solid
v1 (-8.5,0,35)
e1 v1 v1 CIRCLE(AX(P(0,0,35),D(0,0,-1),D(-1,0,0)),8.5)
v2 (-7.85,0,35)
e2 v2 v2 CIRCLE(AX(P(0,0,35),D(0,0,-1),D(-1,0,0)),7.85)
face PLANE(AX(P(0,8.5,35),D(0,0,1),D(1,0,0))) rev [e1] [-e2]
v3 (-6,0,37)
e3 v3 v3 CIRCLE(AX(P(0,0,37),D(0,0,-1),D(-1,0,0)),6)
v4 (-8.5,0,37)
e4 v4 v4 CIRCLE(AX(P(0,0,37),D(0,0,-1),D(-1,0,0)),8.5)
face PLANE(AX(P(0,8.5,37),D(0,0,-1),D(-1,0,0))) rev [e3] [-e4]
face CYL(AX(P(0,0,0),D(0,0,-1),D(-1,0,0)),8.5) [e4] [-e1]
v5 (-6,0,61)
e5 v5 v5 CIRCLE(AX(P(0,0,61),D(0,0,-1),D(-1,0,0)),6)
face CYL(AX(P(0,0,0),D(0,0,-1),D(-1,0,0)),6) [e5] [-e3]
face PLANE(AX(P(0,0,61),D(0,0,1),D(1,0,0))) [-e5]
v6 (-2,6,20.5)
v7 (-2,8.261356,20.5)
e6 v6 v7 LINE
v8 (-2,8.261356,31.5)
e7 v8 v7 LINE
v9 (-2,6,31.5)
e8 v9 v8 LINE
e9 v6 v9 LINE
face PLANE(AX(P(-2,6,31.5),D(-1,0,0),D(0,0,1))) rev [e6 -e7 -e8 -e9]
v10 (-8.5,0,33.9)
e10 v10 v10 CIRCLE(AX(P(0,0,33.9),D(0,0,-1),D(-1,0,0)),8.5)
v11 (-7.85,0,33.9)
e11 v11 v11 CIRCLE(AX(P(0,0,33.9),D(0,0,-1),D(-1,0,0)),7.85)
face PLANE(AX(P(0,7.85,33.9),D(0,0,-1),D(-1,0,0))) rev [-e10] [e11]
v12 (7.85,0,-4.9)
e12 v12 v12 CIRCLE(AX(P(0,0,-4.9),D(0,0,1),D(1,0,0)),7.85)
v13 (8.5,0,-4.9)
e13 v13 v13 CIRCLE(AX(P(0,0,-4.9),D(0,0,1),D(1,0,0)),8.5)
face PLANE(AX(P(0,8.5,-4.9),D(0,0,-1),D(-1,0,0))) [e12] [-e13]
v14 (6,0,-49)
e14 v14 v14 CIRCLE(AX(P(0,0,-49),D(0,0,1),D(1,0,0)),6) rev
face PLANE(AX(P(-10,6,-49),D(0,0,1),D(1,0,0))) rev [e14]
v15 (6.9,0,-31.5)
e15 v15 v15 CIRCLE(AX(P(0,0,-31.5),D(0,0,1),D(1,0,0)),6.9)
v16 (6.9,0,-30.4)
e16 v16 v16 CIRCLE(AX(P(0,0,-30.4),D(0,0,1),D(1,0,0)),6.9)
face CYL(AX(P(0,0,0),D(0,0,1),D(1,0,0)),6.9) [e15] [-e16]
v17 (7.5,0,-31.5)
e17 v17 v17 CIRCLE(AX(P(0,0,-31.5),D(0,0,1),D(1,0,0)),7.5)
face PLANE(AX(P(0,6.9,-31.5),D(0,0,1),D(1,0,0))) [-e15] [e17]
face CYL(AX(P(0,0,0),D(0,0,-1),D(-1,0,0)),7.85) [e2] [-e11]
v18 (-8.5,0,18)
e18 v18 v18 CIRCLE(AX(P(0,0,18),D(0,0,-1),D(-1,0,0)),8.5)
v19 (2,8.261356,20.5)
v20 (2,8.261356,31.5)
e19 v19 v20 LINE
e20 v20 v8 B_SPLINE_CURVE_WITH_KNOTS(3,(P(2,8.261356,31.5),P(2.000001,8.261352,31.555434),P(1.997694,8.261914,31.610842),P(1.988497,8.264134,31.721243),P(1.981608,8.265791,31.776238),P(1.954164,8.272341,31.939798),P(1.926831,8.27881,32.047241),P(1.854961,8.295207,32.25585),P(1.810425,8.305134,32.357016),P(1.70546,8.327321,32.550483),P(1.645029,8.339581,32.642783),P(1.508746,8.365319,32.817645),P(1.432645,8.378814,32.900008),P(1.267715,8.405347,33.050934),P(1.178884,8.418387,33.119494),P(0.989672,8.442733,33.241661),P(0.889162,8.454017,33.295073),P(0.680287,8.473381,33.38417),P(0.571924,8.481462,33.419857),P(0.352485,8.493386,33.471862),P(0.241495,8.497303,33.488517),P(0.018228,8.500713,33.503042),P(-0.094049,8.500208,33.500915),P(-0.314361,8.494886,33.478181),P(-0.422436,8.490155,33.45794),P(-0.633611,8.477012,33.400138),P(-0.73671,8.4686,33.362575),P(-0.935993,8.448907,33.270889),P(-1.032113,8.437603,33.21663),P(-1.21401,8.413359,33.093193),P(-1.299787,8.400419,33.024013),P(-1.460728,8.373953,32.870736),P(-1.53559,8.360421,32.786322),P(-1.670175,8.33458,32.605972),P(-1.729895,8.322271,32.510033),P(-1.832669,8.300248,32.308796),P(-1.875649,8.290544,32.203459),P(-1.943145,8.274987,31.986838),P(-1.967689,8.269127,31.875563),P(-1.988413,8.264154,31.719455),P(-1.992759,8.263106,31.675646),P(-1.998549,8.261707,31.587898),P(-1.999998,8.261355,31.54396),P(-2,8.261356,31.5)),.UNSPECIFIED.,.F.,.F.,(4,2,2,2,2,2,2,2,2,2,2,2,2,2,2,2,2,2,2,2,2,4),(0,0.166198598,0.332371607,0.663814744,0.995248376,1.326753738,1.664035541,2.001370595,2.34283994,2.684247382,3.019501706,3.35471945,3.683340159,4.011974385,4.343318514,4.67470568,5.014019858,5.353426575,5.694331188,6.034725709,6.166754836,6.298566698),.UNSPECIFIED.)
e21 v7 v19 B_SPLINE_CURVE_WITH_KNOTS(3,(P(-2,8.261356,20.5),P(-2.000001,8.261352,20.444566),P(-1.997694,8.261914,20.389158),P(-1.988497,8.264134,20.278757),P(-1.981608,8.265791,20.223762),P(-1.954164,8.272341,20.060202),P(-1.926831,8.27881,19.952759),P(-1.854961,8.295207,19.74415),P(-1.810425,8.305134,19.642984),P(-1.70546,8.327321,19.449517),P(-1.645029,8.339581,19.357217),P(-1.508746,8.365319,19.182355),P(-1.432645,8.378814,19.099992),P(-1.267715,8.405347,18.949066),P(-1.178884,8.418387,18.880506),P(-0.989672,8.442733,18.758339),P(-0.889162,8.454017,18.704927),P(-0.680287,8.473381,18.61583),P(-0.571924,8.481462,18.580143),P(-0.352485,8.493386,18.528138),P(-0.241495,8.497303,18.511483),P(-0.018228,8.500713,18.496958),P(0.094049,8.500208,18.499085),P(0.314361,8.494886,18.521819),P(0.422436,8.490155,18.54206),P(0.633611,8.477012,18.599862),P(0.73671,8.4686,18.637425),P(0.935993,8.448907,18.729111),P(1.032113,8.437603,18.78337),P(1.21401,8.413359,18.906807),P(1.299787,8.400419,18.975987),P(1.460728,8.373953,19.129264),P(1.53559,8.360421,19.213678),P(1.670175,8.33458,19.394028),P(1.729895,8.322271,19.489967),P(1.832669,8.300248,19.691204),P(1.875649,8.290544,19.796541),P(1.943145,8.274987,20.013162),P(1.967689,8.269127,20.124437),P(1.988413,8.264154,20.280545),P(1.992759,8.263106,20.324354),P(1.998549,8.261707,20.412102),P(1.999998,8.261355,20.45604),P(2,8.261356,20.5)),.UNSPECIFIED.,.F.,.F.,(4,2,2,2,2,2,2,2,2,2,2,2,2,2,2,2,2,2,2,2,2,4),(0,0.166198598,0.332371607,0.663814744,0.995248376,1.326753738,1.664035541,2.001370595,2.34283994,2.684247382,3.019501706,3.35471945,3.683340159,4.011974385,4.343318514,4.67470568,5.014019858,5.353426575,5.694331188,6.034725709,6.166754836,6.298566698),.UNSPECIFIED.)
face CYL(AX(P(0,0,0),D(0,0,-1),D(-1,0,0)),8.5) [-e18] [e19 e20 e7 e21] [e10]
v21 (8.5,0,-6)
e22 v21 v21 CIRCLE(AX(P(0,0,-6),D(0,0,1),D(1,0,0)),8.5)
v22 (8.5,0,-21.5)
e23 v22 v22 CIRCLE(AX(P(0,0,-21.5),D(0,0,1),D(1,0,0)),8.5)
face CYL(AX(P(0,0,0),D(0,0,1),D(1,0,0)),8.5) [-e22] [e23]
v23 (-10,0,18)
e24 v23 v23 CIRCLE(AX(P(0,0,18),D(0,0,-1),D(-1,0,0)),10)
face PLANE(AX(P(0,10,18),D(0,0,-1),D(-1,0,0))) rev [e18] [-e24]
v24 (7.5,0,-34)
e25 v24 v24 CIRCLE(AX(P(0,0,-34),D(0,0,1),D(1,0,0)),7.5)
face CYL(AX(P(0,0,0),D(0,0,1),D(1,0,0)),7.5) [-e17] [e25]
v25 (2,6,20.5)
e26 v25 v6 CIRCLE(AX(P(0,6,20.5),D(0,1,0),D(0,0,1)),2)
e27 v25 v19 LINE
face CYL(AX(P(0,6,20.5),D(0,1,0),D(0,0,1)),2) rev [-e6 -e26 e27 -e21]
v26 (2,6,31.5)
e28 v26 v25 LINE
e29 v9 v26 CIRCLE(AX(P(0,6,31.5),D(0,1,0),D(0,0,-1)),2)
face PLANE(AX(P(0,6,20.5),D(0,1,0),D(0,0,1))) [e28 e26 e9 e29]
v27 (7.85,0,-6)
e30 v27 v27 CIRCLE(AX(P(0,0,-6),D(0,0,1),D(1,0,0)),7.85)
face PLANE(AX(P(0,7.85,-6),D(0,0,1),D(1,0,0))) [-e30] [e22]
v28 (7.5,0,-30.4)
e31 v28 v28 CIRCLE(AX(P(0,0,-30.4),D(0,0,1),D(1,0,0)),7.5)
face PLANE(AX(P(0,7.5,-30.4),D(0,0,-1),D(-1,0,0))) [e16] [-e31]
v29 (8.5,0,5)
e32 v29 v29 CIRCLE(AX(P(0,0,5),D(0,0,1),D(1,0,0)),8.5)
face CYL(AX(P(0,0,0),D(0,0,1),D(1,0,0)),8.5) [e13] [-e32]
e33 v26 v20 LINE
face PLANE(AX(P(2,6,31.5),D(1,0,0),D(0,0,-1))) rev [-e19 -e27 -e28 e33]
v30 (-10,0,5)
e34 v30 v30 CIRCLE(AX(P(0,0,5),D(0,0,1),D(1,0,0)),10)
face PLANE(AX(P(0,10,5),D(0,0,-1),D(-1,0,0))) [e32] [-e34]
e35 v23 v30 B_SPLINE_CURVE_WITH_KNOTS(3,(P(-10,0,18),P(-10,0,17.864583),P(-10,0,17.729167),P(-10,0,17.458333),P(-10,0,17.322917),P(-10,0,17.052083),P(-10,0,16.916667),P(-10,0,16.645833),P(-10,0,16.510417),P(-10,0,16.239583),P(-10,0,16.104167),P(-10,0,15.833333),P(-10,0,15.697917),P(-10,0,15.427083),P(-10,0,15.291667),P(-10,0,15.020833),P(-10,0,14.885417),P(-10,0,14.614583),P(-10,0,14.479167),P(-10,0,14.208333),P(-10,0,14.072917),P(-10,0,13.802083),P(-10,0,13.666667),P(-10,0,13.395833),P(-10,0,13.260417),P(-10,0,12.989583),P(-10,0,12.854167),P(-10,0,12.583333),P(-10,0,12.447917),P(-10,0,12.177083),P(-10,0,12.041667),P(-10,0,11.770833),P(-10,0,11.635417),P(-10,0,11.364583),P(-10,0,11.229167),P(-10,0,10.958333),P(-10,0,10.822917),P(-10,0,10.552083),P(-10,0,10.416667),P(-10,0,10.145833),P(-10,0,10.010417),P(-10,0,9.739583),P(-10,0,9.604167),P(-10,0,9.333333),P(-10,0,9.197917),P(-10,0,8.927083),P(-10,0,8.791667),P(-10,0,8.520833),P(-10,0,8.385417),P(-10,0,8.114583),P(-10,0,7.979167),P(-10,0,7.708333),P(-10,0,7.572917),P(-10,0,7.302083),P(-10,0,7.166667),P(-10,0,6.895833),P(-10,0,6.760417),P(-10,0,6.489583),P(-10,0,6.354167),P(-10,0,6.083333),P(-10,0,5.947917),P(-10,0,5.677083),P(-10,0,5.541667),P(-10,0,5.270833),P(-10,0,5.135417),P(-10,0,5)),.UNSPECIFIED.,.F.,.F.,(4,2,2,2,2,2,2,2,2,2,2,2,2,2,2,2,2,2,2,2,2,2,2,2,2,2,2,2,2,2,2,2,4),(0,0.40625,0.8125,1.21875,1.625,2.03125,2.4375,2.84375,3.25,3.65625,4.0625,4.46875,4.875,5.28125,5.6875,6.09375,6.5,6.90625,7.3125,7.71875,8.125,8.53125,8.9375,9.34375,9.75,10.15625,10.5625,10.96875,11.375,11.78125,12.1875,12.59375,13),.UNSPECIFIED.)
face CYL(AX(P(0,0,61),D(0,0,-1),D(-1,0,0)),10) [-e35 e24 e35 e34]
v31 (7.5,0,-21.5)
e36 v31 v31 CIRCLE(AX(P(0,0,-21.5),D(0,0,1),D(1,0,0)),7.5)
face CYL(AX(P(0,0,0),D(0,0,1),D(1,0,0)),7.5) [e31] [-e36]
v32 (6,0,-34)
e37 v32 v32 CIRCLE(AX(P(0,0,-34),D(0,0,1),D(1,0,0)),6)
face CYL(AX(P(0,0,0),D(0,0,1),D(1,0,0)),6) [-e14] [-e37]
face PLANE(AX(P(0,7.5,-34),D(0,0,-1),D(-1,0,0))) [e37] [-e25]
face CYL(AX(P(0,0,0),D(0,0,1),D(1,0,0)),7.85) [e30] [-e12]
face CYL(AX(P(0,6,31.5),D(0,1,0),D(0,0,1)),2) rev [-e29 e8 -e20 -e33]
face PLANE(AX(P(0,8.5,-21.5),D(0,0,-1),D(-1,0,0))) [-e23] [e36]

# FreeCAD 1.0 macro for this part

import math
import FreeCAD as App
import Part
import Sketcher

V = App.Vector
Q = App.Units.Quantity


def add_polygon(sketch, points):
    """Adds a closed chain of lines whose ends are joined by coincident constraints."""
    first, n = sketch.GeometryCount, len(points)
    for a, b in zip(points, points[1:] + points[:1]):
        sketch.addGeometry(Part.LineSegment(App.Vector(*a, 0), App.Vector(*b, 0)), False)
    for i in range(n):
        sketch.addConstraint(Sketcher.Constraint("Coincident", first + i, 2, first + (i + 1) % n, 1))

doc = App.newDocument("Part")
body = doc.addObject("PartDesign::Body", "Body")

# Sketch on XY plane
sketch1 = body.newObject("Sketcher::SketchObject", "Sketch")
sketch1.AttachmentSupport = (doc.getObject("XY_Plane"), [""])
sketch1.MapMode = "FlatFace"
sketch1.addGeometry(Part.Circle(V(0, 0, 0), V(0, 0, 1), 10), False)
sketch1.addConstraint(Sketcher.Constraint("Coincident", 0, 3, -1, 1))
sketch1.addConstraint(Sketcher.Constraint("Diameter", 0, Q("20 mm")))
pad1 = body.newObject("PartDesign::Pad", "Pad")
pad1.Profile = sketch1
pad1.Length = 122
pad1.Midplane = True

# Sketch on YZ plane
sketch2 = body.newObject("Sketcher::SketchObject", "Sketch001")
sketch2.AttachmentSupport = (doc.getObject("YZ_Plane"), [""])
sketch2.MapMode = "FlatFace"
add_polygon(sketch2, [(10, 5), (8.5, 5), (8.5, -61), (10, -61)])  # lines 0-3
sketch2.addConstraint(Sketcher.Constraint("Horizontal", 0))
sketch2.addConstraint(Sketcher.Constraint("Vertical", 1))
sketch2.addConstraint(Sketcher.Constraint("Horizontal", 2))
sketch2.addConstraint(Sketcher.Constraint("Vertical", 3))
sketch2.addConstraint(Sketcher.Constraint("DistanceY", 1, 2, 1, 1, Q("66 mm")))
sketch2.addConstraint(Sketcher.Constraint("DistanceX", 0, 2, 0, 1, Q("1.5 mm")))
sketch2.addConstraint(Sketcher.Constraint("DistanceY", -1, 1, 0, 2, Q("5 mm")))
sketch2.addConstraint(Sketcher.Constraint("DistanceX", -1, 1, 2, 2, Q("10 mm")))
groove = body.newObject("PartDesign::Groove", "Groove")
groove.Profile = sketch2
groove.ReferenceAxis = (sketch2, ["V_Axis"])
groove.Angle = 360

# Sketch on YZ plane
sketch3 = body.newObject("Sketcher::SketchObject", "Sketch002")
sketch3.AttachmentSupport = (doc.getObject("YZ_Plane"), [""])
sketch3.MapMode = "FlatFace"
add_polygon(sketch3, [(10, 61), (8.5, 61), (8.5, 18), (10, 18)])  # lines 0-3
sketch3.addConstraint(Sketcher.Constraint("Horizontal", 0))
sketch3.addConstraint(Sketcher.Constraint("Vertical", 1))
sketch3.addConstraint(Sketcher.Constraint("Horizontal", 2))
sketch3.addConstraint(Sketcher.Constraint("Vertical", 3))
sketch3.addConstraint(Sketcher.Constraint("DistanceY", 1, 2, 1, 1, Q("43 mm")))
sketch3.addConstraint(Sketcher.Constraint("DistanceX", 0, 2, 0, 1, Q("1.5 mm")))
sketch3.addConstraint(Sketcher.Constraint("DistanceY", -1, 1, 0, 2, Q("61 mm")))
sketch3.addConstraint(Sketcher.Constraint("DistanceX", -1, 1, 2, 2, Q("10 mm")))
groove2 = body.newObject("PartDesign::Groove", "Groove001")
groove2.Profile = sketch3
groove2.ReferenceAxis = (sketch3, ["V_Axis"])
groove2.Angle = 360

# Sketch on YZ plane
sketch4 = body.newObject("Sketcher::SketchObject", "Sketch003")
sketch4.AttachmentSupport = (doc.getObject("YZ_Plane"), [""])
sketch4.MapMode = "FlatFace"
add_polygon(sketch4, [(8.5, 61), (6, 61), (6, 37), (8.5, 37)])  # lines 0-3
sketch4.addConstraint(Sketcher.Constraint("Horizontal", 0))
sketch4.addConstraint(Sketcher.Constraint("Vertical", 1))
sketch4.addConstraint(Sketcher.Constraint("Horizontal", 2))
sketch4.addConstraint(Sketcher.Constraint("Vertical", 3))
sketch4.addConstraint(Sketcher.Constraint("DistanceY", 1, 2, 1, 1, Q("24 mm")))
sketch4.addConstraint(Sketcher.Constraint("DistanceX", 0, 2, 0, 1, Q("2.5 mm")))
sketch4.addConstraint(Sketcher.Constraint("DistanceX", -1, 1, 0, 2, Q("6 mm")))
sketch4.addConstraint(Sketcher.Constraint("DistanceY", -1, 1, 0, 2, Q("61 mm")))
groove3 = body.newObject("PartDesign::Groove", "Groove002")
groove3.Profile = sketch4
groove3.ReferenceAxis = (sketch4, ["V_Axis"])
groove3.Angle = 360

# Sketch on YZ plane
sketch5 = body.newObject("Sketcher::SketchObject", "Sketch004")
sketch5.AttachmentSupport = (doc.getObject("YZ_Plane"), [""])
sketch5.MapMode = "FlatFace"
add_polygon(sketch5, [(8.5, -21.5), (7.5, -21.5), (7.5, -61), (8.5, -61)])  # lines 0-3
sketch5.addConstraint(Sketcher.Constraint("Horizontal", 0))
sketch5.addConstraint(Sketcher.Constraint("Vertical", 1))
sketch5.addConstraint(Sketcher.Constraint("Horizontal", 2))
sketch5.addConstraint(Sketcher.Constraint("Vertical", 3))
sketch5.addConstraint(Sketcher.Constraint("DistanceX", 0, 2, 0, 1, Q("1 mm")))
sketch5.addConstraint(Sketcher.Constraint("DistanceY", 1, 2, 1, 1, Q("39.5 mm")))
sketch5.addConstraint(Sketcher.Constraint("DistanceY", 1, 2, -1, 1, Q("61 mm")))
sketch5.addConstraint(Sketcher.Constraint("DistanceX", -1, 1, 0, 2, Q("7.5 mm")))
groove4 = body.newObject("PartDesign::Groove", "Groove003")
groove4.Profile = sketch5
groove4.ReferenceAxis = (sketch5, ["V_Axis"])
groove4.Angle = 360

# Sketch on YZ plane
sketch6 = body.newObject("Sketcher::SketchObject", "Sketch005")
sketch6.AttachmentSupport = (doc.getObject("YZ_Plane"), [""])
sketch6.MapMode = "FlatFace"
add_polygon(sketch6, [(7.5, -34), (6, -34), (6, -61), (7.5, -61)])  # lines 0-3
sketch6.addConstraint(Sketcher.Constraint("Horizontal", 0))
sketch6.addConstraint(Sketcher.Constraint("Vertical", 1))
sketch6.addConstraint(Sketcher.Constraint("Horizontal", 2))
sketch6.addConstraint(Sketcher.Constraint("Vertical", 3))
sketch6.addConstraint(Sketcher.Constraint("DistanceY", 1, 2, 1, 1, Q("27 mm")))
sketch6.addConstraint(Sketcher.Constraint("DistanceX", 0, 2, 0, 1, Q("1.5 mm")))
sketch6.addConstraint(Sketcher.Constraint("DistanceX", -1, 1, 0, 2, Q("6 mm")))
sketch6.addConstraint(Sketcher.Constraint("DistanceY", 0, 2, -1, 1, Q("34 mm")))
groove5 = body.newObject("PartDesign::Groove", "Groove004")
groove5.Profile = sketch6
groove5.ReferenceAxis = (sketch6, ["V_Axis"])
groove5.Angle = 360

# Sketch on YZ plane
sketch7 = body.newObject("Sketcher::SketchObject", "Sketch006")
sketch7.AttachmentSupport = (doc.getObject("YZ_Plane"), [""])
sketch7.MapMode = "FlatFace"
add_polygon(sketch7, [(7.5, -30.4), (6.9, -30.4), (6.9, -31.5), (7.5, -31.5)])  # lines 0-3
sketch7.addConstraint(Sketcher.Constraint("Horizontal", 0))
sketch7.addConstraint(Sketcher.Constraint("Vertical", 1))
sketch7.addConstraint(Sketcher.Constraint("Horizontal", 2))
sketch7.addConstraint(Sketcher.Constraint("Vertical", 3))
sketch7.addConstraint(Sketcher.Constraint("DistanceX", 0, 2, 0, 1, Q("0.6 mm")))
sketch7.addConstraint(Sketcher.Constraint("DistanceY", 1, 2, 1, 1, Q("1.1 mm")))
sketch7.addConstraint(Sketcher.Constraint("DistanceX", -1, 1, 0, 2, Q("6.9 mm")))
sketch7.addConstraint(Sketcher.Constraint("DistanceY", 0, 2, -1, 1, Q("30.4 mm")))
groove6 = body.newObject("PartDesign::Groove", "Groove005")
groove6.Profile = sketch7
groove6.ReferenceAxis = (sketch7, ["V_Axis"])
groove6.Angle = 360

# Sketch on YZ plane
sketch8 = body.newObject("Sketcher::SketchObject", "Sketch007")
sketch8.AttachmentSupport = (doc.getObject("YZ_Plane"), [""])
sketch8.MapMode = "FlatFace"
add_polygon(sketch8, [(8.5, -4.9), (7.8, -4.9), (7.8, -6), (8.5, -6)])  # lines 0-3
sketch8.addConstraint(Sketcher.Constraint("Horizontal", 0))
sketch8.addConstraint(Sketcher.Constraint("Vertical", 1))
sketch8.addConstraint(Sketcher.Constraint("Horizontal", 2))
sketch8.addConstraint(Sketcher.Constraint("Vertical", 3))
sketch8.addConstraint(Sketcher.Constraint("DistanceY", 1, 2, 1, 1, Q("1.1 mm")))
sketch8.addConstraint(Sketcher.Constraint("DistanceY", 1, 2, -1, 1, Q("6 mm")))
sketch8.addConstraint(Sketcher.Constraint("DistanceX", 0, 2, 0, 1, Q("0.65 mm")))
sketch8.addConstraint(Sketcher.Constraint("DistanceX", -1, 1, 2, 2, Q("8.5 mm")))
groove7 = body.newObject("PartDesign::Groove", "Groove006")
groove7.Profile = sketch8
groove7.ReferenceAxis = (sketch8, ["V_Axis"])
groove7.Angle = 360

# Sketch on YZ plane
sketch9 = body.newObject("Sketcher::SketchObject", "Sketch008")
sketch9.AttachmentSupport = (doc.getObject("YZ_Plane"), [""])
sketch9.MapMode = "FlatFace"
add_polygon(sketch9, [(8.5, 35), (7.8, 35), (7.8, 33.9), (8.5, 33.9)])  # lines 0-3
sketch9.addConstraint(Sketcher.Constraint("Horizontal", 0))
sketch9.addConstraint(Sketcher.Constraint("Vertical", 1))
sketch9.addConstraint(Sketcher.Constraint("Horizontal", 2))
sketch9.addConstraint(Sketcher.Constraint("Vertical", 3))
sketch9.addConstraint(Sketcher.Constraint("DistanceY", 1, 2, 1, 1, Q("1.1 mm")))
sketch9.addConstraint(Sketcher.Constraint("DistanceY", -1, 1, 0, 2, Q("35 mm")))
sketch9.addConstraint(Sketcher.Constraint("DistanceX", 0, 2, 0, 1, Q("0.65 mm")))
sketch9.addConstraint(Sketcher.Constraint("DistanceX", -1, 1, 2, 2, Q("8.5 mm")))
groove8 = body.newObject("PartDesign::Groove", "Groove007")
groove8.Profile = sketch9
groove8.ReferenceAxis = (sketch9, ["V_Axis"])
groove8.Angle = 360

# Sketch on YZ plane
sketch10 = body.newObject("Sketcher::SketchObject", "Sketch009")
sketch10.AttachmentSupport = (doc.getObject("YZ_Plane"), [""])
sketch10.MapMode = "FlatFace"
add_polygon(sketch10, [(6, -49), (-6, -49), (-6, -61), (6, -61)])  # lines 0-3
sketch10.addConstraint(Sketcher.Constraint("Horizontal", 0))
sketch10.addConstraint(Sketcher.Constraint("Vertical", 1))
sketch10.addConstraint(Sketcher.Constraint("Horizontal", 2))
sketch10.addConstraint(Sketcher.Constraint("Vertical", 3))
sketch10.addConstraint(Sketcher.Constraint("Equal", 2, 1))
sketch10.addConstraint(Sketcher.Constraint("DistanceX", 0, 2, 0, 1, Q("12 mm")))
sketch10.addConstraint(Sketcher.Constraint("DistanceX", 0, 2, -1, 1, Q("6 mm")))
sketch10.addConstraint(Sketcher.Constraint("DistanceY", 0, 2, -1, 1, Q("49 mm")))
pocket1 = body.newObject("PartDesign::Pocket", "Pocket")
pocket1.Profile = sketch10
pocket1.Type = "ThroughAll"
pocket1.Midplane = True

# Sketch on XZ plane
sketch11 = body.newObject("Sketcher::SketchObject", "Sketch010")
sketch11.AttachmentSupport = (doc.getObject("XZ_Plane"), [""])
sketch11.MapMode = "FlatFace"
sketch11.AttachmentOffset = App.Placement(V(0, 0, -8.5), App.Rotation())
sketch11.addGeometry(Part.LineSegment(V(2, 31.5, 0), V(2, 20.5, 0)), False)
sketch11.addGeometry(Part.ArcOfCircle(Part.Circle(V(0, 20.5, 0), V(0, 0, 1), 2), math.radians(180), math.radians(360)), False)
sketch11.addGeometry(Part.LineSegment(V(-2, 20.5, 0), V(-2, 31.5, 0)), False)
sketch11.addGeometry(Part.ArcOfCircle(Part.Circle(V(0, 31.5, 0), V(0, 0, 1), 2), math.radians(0), math.radians(180)), False)
sketch11.addConstraint(Sketcher.Constraint("Tangent", 0, 2, 1, 2))
sketch11.addConstraint(Sketcher.Constraint("Tangent", 1, 1, 2, 1))
sketch11.addConstraint(Sketcher.Constraint("Tangent", 2, 2, 3, 2))
sketch11.addConstraint(Sketcher.Constraint("Tangent", 3, 1, 0, 1))
sketch11.addConstraint(Sketcher.Constraint("Vertical", 0))
sketch11.addConstraint(Sketcher.Constraint("Vertical", 2))
sketch11.addConstraint(Sketcher.Constraint("PointOnObject", 1, 3, -2))
sketch11.addConstraint(Sketcher.Constraint("Radius", 1, Q("2 mm")))
sketch11.addConstraint(Sketcher.Constraint("DistanceY", 0, 2, 0, 1, Q("11 mm")))
sketch11.addConstraint(Sketcher.Constraint("DistanceY", -1, 1, 1, 3, Q("20.5 mm")))
pocket2 = body.newObject("PartDesign::Pocket", "Pocket001")
pocket2.Profile = sketch11
pocket2.Length = 2.5
pocket2.Reversed = True

doc.recompute()
